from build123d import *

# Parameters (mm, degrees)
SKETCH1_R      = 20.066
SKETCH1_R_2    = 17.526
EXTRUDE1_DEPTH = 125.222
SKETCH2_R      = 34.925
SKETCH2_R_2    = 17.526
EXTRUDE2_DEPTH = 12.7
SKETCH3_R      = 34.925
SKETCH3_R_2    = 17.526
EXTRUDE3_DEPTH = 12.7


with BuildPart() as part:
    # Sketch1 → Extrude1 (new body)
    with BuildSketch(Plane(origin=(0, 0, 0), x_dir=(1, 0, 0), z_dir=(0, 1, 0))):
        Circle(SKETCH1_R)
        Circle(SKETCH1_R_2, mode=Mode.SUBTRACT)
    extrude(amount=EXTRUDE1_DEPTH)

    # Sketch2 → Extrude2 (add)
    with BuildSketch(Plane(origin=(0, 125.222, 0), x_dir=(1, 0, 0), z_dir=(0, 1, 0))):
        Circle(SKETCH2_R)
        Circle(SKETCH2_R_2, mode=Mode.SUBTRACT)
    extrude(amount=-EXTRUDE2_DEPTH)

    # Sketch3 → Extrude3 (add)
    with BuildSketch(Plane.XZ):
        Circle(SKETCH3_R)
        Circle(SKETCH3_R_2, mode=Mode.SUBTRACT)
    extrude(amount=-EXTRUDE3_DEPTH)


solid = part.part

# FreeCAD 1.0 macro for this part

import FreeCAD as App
import Part
import Sketcher
Q = App.Units.Quantity

doc = App.newDocument("Part")
body = doc.addObject("PartDesign::Body", "Body")

sketch1 = doc.addObject("Sketcher::SketchObject", "Sketch")
body.addObject(sketch1)
sketch1.AttachmentSupport = (doc.XZ_Plane, [""])
sketch1.MapMode = "FlatFace"
sketch1.addGeometry([
    Part.Circle(App.Vector(0, 0, 0), App.Vector(0, 0, 1), 20),
    Part.Circle(App.Vector(0, 0, 0), App.Vector(0, 0, 1), 18),
], False)
sketch1.addConstraint([
    Sketcher.Constraint("Coincident", 0, 3, -1, 1),
    Sketcher.Constraint("Coincident", 1, 3, -1, 1),
    Sketcher.Constraint("Diameter", 0, Q("1.58 in")),
    Sketcher.Constraint("Diameter", 1, Q("1.38 in")),
])
pad1 = doc.addObject("PartDesign::Pad", "Pad")
body.addObject(pad1)
pad1.Profile = sketch1
pad1.Length = Q("4.93 in")
pad1.Reversed = True

sketch2 = doc.addObject("Sketcher::SketchObject", "Sketch001")
body.addObject(sketch2)
sketch2.AttachmentSupport = (doc.XZ_Plane, [""])
sketch2.MapMode = "FlatFace"
sketch2.AttachmentOffset = App.Placement(App.Vector(0, 0, -4.93 * 25.4), App.Rotation())
sketch2.addGeometry([
    Part.Circle(App.Vector(0, 0, 0), App.Vector(0, 0, 1), 35),
    Part.Circle(App.Vector(0, 0, 0), App.Vector(0, 0, 1), 18),
], False)
sketch2.addConstraint([
    Sketcher.Constraint("Coincident", 0, 3, -1, 1),
    Sketcher.Constraint("Coincident", 1, 3, -1, 1),
    Sketcher.Constraint("Diameter", 0, Q("2.75 in")),
    Sketcher.Constraint("Diameter", 1, Q("1.38 in")),
])
pad2 = doc.addObject("PartDesign::Pad", "Pad001")
body.addObject(pad2)
pad2.Profile = sketch2
pad2.Length = Q("0.5 in")

sketch3 = doc.addObject("Sketcher::SketchObject", "Sketch002")
body.addObject(sketch3)
sketch3.AttachmentSupport = (doc.XZ_Plane, [""])
sketch3.MapMode = "FlatFace"
sketch3.addGeometry([
    Part.Circle(App.Vector(0, 0, 0), App.Vector(0, 0, 1), 35),
    Part.Circle(App.Vector(0, 0, 0), App.Vector(0, 0, 1), 18),
], False)
sketch3.addConstraint([
    Sketcher.Constraint("Coincident", 0, 3, -1, 1),
    Sketcher.Constraint("Coincident", 1, 3, -1, 1),
    Sketcher.Constraint("Diameter", 0, Q("2.75 in")),
    Sketcher.Constraint("Diameter", 1, Q("1.38 in")),
])
pad3 = doc.addObject("PartDesign::Pad", "Pad002")
body.addObject(pad3)
pad3.Profile = sketch3
pad3.Length = Q("0.5 in")
pad3.Reversed = True

doc.recompute()
